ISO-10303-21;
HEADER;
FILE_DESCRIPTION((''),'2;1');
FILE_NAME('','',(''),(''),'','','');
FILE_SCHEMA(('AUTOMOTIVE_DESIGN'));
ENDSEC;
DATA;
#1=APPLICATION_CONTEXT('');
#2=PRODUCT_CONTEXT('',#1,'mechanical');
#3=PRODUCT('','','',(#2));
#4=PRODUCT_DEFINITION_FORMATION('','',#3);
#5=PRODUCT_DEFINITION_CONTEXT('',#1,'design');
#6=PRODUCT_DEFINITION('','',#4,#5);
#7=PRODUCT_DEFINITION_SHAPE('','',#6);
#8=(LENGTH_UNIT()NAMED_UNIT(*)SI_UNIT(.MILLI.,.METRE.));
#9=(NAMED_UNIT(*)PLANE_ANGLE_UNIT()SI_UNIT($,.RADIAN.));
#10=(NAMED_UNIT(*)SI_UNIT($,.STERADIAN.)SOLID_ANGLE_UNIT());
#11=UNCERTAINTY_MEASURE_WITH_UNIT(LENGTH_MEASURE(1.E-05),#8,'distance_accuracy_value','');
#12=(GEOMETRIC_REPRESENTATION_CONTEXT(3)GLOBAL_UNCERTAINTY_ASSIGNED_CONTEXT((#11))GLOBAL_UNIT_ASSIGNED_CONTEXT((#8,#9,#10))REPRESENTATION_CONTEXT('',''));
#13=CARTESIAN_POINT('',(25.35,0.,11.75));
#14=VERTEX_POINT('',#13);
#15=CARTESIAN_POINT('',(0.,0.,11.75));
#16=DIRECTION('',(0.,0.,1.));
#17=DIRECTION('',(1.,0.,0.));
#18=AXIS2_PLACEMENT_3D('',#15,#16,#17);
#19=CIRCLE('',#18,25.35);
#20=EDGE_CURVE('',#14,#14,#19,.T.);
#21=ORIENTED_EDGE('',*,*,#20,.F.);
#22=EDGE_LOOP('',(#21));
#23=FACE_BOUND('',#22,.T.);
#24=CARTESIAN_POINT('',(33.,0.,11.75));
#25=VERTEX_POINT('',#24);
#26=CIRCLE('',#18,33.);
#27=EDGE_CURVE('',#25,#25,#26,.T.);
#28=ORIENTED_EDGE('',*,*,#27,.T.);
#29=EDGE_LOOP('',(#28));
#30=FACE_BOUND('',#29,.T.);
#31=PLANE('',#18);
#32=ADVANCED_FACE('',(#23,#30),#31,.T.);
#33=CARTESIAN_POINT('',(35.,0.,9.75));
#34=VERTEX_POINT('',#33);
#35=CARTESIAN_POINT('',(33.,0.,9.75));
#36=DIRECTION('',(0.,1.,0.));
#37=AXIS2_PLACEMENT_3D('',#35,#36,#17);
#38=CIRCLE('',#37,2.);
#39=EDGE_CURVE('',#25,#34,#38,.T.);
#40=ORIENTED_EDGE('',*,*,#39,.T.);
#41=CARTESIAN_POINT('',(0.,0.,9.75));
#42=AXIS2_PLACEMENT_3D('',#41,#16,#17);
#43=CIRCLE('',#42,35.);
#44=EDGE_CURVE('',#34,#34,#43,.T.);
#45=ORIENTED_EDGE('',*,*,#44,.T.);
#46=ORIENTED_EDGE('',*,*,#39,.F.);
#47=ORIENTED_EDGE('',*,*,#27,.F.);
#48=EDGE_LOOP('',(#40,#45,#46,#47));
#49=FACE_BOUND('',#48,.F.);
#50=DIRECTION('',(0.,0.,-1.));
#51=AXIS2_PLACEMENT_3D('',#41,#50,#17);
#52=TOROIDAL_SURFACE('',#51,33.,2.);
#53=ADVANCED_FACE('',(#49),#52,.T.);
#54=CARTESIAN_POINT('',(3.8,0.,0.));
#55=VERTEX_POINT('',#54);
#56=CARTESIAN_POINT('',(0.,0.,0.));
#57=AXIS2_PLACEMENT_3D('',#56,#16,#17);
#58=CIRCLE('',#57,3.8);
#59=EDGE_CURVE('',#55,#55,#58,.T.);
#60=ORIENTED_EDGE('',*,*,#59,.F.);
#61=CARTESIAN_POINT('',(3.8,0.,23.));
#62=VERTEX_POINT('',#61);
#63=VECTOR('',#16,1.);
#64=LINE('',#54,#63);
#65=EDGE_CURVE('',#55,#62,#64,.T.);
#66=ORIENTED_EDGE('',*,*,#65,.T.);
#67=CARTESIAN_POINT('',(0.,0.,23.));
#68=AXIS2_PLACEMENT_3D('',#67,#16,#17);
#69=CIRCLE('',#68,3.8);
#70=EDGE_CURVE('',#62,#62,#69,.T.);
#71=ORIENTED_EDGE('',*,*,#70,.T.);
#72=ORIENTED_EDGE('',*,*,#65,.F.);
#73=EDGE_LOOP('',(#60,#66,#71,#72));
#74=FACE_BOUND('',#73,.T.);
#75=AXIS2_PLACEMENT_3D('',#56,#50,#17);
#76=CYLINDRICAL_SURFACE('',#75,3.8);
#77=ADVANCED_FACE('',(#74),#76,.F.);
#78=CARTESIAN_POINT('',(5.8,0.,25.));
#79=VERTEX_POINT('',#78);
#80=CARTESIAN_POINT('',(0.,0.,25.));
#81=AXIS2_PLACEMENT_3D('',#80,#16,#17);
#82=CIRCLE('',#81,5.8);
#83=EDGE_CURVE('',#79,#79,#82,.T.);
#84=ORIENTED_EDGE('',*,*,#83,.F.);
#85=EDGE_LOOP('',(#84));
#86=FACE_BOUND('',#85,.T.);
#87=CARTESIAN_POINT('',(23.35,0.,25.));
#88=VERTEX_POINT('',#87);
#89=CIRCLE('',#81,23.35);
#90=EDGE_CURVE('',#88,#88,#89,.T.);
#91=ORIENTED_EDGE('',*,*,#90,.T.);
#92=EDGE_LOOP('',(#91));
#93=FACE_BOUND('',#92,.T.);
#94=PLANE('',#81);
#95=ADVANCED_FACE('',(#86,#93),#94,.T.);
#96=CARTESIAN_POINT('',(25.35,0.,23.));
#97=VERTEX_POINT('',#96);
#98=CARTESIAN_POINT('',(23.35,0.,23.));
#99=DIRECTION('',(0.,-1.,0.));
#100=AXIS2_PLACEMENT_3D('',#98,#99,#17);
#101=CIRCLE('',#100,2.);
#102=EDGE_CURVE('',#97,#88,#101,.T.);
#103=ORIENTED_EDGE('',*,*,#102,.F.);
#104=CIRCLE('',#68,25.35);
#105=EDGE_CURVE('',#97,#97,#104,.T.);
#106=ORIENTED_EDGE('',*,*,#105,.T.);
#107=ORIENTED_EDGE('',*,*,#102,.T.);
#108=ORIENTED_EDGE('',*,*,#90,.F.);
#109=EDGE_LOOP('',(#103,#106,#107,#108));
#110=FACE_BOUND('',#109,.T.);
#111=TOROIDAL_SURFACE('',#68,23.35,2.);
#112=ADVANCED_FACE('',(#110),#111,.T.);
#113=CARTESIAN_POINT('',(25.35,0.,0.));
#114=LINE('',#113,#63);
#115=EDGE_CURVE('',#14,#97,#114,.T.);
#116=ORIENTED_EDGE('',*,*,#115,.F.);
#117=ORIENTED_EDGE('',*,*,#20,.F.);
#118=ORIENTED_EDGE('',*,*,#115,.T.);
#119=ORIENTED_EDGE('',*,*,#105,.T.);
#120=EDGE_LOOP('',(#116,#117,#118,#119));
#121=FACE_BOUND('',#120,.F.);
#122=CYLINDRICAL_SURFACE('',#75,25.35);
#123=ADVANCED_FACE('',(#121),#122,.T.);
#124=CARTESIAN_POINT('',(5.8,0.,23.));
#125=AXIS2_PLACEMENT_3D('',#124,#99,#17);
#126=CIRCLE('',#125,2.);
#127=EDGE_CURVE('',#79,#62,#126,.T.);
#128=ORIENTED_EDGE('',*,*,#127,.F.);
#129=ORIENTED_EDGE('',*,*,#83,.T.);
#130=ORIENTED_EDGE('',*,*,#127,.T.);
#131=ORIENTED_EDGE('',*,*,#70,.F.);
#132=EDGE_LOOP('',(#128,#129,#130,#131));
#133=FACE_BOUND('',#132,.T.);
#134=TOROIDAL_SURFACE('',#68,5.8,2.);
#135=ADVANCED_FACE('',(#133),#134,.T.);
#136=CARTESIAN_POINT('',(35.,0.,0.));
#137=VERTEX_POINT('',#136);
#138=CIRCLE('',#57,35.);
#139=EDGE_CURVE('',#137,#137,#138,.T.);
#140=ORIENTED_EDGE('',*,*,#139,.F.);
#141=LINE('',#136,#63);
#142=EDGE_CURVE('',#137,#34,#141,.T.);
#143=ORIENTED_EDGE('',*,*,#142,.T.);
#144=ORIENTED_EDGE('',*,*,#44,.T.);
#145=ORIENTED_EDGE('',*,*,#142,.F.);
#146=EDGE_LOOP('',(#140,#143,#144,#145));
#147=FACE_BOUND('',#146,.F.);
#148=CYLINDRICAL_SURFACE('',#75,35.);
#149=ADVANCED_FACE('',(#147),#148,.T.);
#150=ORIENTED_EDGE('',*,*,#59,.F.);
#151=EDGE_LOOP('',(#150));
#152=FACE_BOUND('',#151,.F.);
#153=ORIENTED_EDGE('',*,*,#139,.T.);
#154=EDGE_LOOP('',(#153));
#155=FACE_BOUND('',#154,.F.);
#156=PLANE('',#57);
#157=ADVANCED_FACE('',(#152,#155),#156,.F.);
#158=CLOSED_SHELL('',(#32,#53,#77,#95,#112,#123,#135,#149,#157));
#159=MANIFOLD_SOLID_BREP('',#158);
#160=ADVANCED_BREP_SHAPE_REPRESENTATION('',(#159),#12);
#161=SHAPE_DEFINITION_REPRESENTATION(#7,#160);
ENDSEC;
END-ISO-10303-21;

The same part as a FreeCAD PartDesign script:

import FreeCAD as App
import Part
import Sketcher
from FreeCAD import Vector
Q = App.Units.Quantity


def edges_at(feature, points):
    """Names of the edges that pass closest to the given points."""
    edges = feature.Shape.Edges
    near = lambda p: min(range(len(edges)), key=lambda i: edges[i].distToShape(Part.Vertex(*p))[0])
    return sorted({f"Edge{near(p) + 1}" for p in points})

doc = App.newDocument("Part")
params = doc.addObject("Spreadsheet::Sheet", "Params")
for row, (alias, value) in enumerate([
    ("sketch1_diameter", "70 mm"),
    ("sketch1_diameter2", "50.7 mm"),
    ("pad1_length", "11.75 mm"),
    ("sketch2_diameter", "50.7 mm"),
    ("sketch2_diameter2", "7.6 mm"),
    ("pad2_length", "25 mm"),
    ("fillet_radius", "2 mm"),
], start=1):
    params.set(f"A{row}", alias)
    params.set(f"B{row}", "=" + value)
    params.setAlias(f"B{row}", alias)

body = doc.addObject("PartDesign::Body", "Body")

sketch1 = body.newObject("Sketcher::SketchObject", "Sketch")
sketch1.AttachmentSupport = (doc.getObject("XY_Plane"), [""])
sketch1.MapMode = "FlatFace"
sketch1.addGeometry(Part.Circle(Vector(0, 0, 0), Vector(0, 0, 1), 35), False)
sketch1.addGeometry(Part.Circle(Vector(0, 0, 0), Vector(0, 0, 1), 25), False)
sketch1.addConstraint(Sketcher.Constraint("Coincident", 0, 3, -1, 1))
sketch1.addConstraint(Sketcher.Constraint("Coincident", 1, 3, -1, 1))
sketch1.addConstraint(Sketcher.Constraint("Diameter", 0, Q("70 mm")))
sketch1.addConstraint(Sketcher.Constraint("Diameter", 1, Q("50.7 mm")))
sketch1.setExpression("Constraints[2]", "Params.sketch1_diameter")
sketch1.setExpression("Constraints[3]", "Params.sketch1_diameter2")
pad1 = body.newObject("PartDesign::Pad", "Pad")
pad1.Profile = sketch1
pad1.setExpression("Length", "Params.pad1_length")

sketch2 = body.newObject("Sketcher::SketchObject", "Sketch001")
sketch2.AttachmentSupport = (doc.getObject("XY_Plane"), [""])
sketch2.MapMode = "FlatFace"
sketch2.addGeometry(Part.Circle(Vector(0, 0, 0), Vector(0, 0, 1), 25.4), False)
sketch2.addGeometry(Part.Circle(Vector(0, 0, 0), Vector(0, 0, 1), 3.8), False)
sketch2.addConstraint(Sketcher.Constraint("Coincident", 0, 3, -1, 1))
sketch2.addConstraint(Sketcher.Constraint("Coincident", 1, 3, -1, 1))
sketch2.addConstraint(Sketcher.Constraint("Diameter", 0, Q("50.7 mm")))
sketch2.addConstraint(Sketcher.Constraint("Diameter", 1, Q("7.6 mm")))
sketch2.setExpression("Constraints[2]", "Params.sketch2_diameter")
sketch2.setExpression("Constraints[3]", "Params.sketch2_diameter2")
pad2 = body.newObject("PartDesign::Pad", "Pad001")
pad2.Profile = sketch2
pad2.setExpression("Length", "Params.pad2_length")
doc.recompute()

fillet = body.newObject("PartDesign::Fillet", "Fillet")
fillet.Base = (pad2, edges_at(pad2, [(-35, 0, 11.75), (-25.35, 0, 25), (-3.8, 0, 25)]))
fillet.setExpression("Radius", "Params.fillet_radius")

doc.recompute()
